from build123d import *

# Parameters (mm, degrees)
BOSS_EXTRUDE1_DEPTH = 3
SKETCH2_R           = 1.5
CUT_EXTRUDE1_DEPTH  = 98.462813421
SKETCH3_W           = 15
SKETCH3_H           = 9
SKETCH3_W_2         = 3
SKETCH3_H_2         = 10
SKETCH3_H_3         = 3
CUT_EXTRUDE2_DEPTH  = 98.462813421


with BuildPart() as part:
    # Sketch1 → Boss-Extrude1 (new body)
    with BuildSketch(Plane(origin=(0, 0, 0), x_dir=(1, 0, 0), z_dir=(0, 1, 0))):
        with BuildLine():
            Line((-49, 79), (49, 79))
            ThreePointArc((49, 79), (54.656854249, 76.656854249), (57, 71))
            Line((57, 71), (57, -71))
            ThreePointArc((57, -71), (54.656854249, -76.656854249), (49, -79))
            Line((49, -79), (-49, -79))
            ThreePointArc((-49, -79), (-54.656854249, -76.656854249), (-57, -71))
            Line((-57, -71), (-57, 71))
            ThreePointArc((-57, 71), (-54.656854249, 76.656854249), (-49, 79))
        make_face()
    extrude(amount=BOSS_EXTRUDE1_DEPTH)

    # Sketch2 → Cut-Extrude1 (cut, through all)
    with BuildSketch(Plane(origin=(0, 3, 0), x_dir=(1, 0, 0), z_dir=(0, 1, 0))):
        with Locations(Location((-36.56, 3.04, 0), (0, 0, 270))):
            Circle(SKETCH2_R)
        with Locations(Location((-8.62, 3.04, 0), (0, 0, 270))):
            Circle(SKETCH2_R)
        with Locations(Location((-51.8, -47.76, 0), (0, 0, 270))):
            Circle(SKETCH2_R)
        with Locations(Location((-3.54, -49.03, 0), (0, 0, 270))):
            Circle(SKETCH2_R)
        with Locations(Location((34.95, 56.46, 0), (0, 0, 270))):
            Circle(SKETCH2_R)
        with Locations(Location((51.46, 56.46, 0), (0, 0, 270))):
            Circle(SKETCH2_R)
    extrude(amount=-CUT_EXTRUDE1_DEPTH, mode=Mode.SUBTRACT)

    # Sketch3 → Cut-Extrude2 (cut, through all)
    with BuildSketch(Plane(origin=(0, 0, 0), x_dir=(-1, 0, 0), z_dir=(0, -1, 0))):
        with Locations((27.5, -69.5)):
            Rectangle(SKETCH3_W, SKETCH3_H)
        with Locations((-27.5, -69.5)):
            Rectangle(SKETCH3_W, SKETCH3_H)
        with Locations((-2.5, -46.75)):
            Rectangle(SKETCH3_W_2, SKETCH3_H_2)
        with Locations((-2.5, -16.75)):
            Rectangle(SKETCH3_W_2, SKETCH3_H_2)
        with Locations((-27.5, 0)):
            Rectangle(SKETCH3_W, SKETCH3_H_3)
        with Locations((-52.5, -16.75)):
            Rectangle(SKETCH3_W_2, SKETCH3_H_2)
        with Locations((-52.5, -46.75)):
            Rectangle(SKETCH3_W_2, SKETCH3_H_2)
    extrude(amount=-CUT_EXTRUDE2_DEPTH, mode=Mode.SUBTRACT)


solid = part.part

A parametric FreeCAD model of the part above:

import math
import FreeCAD as App
import Part
import Sketcher
from FreeCAD import Vector


def add_polygon(sketch, points):
    """Adds a closed chain of lines whose ends are joined by coincident constraints."""
    first, n = sketch.GeometryCount, len(points)
    for a, b in zip(points, points[1:] + points[:1]):
        sketch.addGeometry(Part.LineSegment(App.Vector(*a, 0), App.Vector(*b, 0)), False)
    for i in range(n):
        sketch.addConstraint(Sketcher.Constraint("Coincident", first + i, 2, first + (i + 1) % n, 1))

doc = App.newDocument("Part")
body = doc.addObject("PartDesign::Body", "Body")

# Sketch on XZ plane
sketch1 = body.newObject("Sketcher::SketchObject", "Sketch")
sketch1.AttachmentSupport = (doc.getObject("XZ_Plane"), [""])
sketch1.MapMode = "FlatFace"
sketch1.addGeometry(Part.LineSegment(Vector(49, -79, 0), Vector(-49, -79, 0)), False)
sketch1.addGeometry(Part.ArcOfCircle(Part.Circle(Vector(-49, -71, 0), Vector(0, 0, 1), 8), math.radians(-180), math.radians(-90)), False)
sketch1.addGeometry(Part.LineSegment(Vector(-57, -71, 0), Vector(-57, 71, 0)), False)
sketch1.addGeometry(Part.ArcOfCircle(Part.Circle(Vector(-49, 71, 0), Vector(0, 0, 1), 8), math.radians(90), math.radians(180)), False)
sketch1.addGeometry(Part.LineSegment(Vector(-49, 79, 0), Vector(49, 79, 0)), False)
sketch1.addGeometry(Part.ArcOfCircle(Part.Circle(Vector(49, 71, 0), Vector(0, 0, 1), 8), math.radians(0), math.radians(90)), False)
sketch1.addGeometry(Part.LineSegment(Vector(57, 71, 0), Vector(57, -71, 0)), False)
sketch1.addGeometry(Part.ArcOfCircle(Part.Circle(Vector(49, -71, 0), Vector(0, 0, 1), 8), math.radians(-90), math.radians(0)), False)
sketch1.addConstraint(Sketcher.Constraint("Tangent", 0, 2, 1, 2))
sketch1.addConstraint(Sketcher.Constraint("Tangent", 1, 1, 2, 1))
sketch1.addConstraint(Sketcher.Constraint("Tangent", 2, 2, 3, 2))
sketch1.addConstraint(Sketcher.Constraint("Tangent", 3, 1, 4, 1))
sketch1.addConstraint(Sketcher.Constraint("Tangent", 4, 2, 5, 2))
sketch1.addConstraint(Sketcher.Constraint("Tangent", 5, 1, 6, 1))
sketch1.addConstraint(Sketcher.Constraint("Tangent", 6, 2, 7, 2))
sketch1.addConstraint(Sketcher.Constraint("Tangent", 7, 1, 0, 1))
sketch1.addConstraint(Sketcher.Constraint("Horizontal", 0))
sketch1.addConstraint(Sketcher.Constraint("Vertical", 2))
sketch1.addConstraint(Sketcher.Constraint("Horizontal", 4))
sketch1.addConstraint(Sketcher.Constraint("Vertical", 6))
sketch1.addConstraint(Sketcher.Constraint("Equal", 1, 3))
sketch1.addConstraint(Sketcher.Constraint("Equal", 3, 5))
sketch1.addConstraint(Sketcher.Constraint("Equal", 5, 7))
sketch1.addConstraint(Sketcher.Constraint("Symmetric", 1, 3, 5, 3, -1, 1))
sketch1.addConstraint(Sketcher.Constraint("Radius", 1, 8.0))
sketch1.addConstraint(Sketcher.Constraint("DistanceX", 0, 2, 0, 1, 98.0))
sketch1.addConstraint(Sketcher.Constraint("DistanceY", 2, 1, 2, 2, 142.0))
pad1 = body.newObject("PartDesign::Pad", "Pad")
pad1.Profile = sketch1
pad1.Length = 3
pad1.Reversed = True

# Sketch on XZ plane
sketch2 = body.newObject("Sketcher::SketchObject", "Sketch001")
sketch2.AttachmentSupport = (doc.getObject("XZ_Plane"), [""])
sketch2.MapMode = "FlatFace"
sketch2.AttachmentOffset = App.Placement(Vector(0, 0, -3), App.Rotation())
sketch2.addGeometry(Part.Circle(Vector(-36.6, -3, 0), Vector(0, 0, 1), 1.5), False)
sketch2.addGeometry(Part.Circle(Vector(-8.6, -3, 0), Vector(0, 0, 1), 1.5), False)
sketch2.addGeometry(Part.Circle(Vector(-51.8, 47.8, 0), Vector(0, 0, 1), 1.5), False)
sketch2.addGeometry(Part.Circle(Vector(-3.5, 49, 0), Vector(0, 0, 1), 1.5), False)
sketch2.addGeometry(Part.Circle(Vector(35, -56.5, 0), Vector(0, 0, 1), 1.5), False)
sketch2.addGeometry(Part.Circle(Vector(51.5, -56.5, 0), Vector(0, 0, 1), 1.5), False)
sketch2.addConstraint(Sketcher.Constraint("Equal", 0, 1))
sketch2.addConstraint(Sketcher.Constraint("Equal", 1, 2))
sketch2.addConstraint(Sketcher.Constraint("Equal", 2, 3))
sketch2.addConstraint(Sketcher.Constraint("Equal", 3, 4))
sketch2.addConstraint(Sketcher.Constraint("Equal", 4, 5))
sketch2.addConstraint(Sketcher.Constraint("Horizontal", 0, 3, 1, 3))
sketch2.addConstraint(Sketcher.Constraint("Horizontal", 4, 3, 5, 3))
sketch2.addConstraint(Sketcher.Constraint("Diameter", 0, 3.0))
sketch2.addConstraint(Sketcher.Constraint("DistanceX", 3, 3, 5, 3, 55.0))
sketch2.addConstraint(Sketcher.Constraint("DistanceX", 2, 3, -1, 1, 51.8))
sketch2.addConstraint(Sketcher.Constraint("DistanceY", 0, 3, 2, 3, 50.8))
sketch2.addConstraint(Sketcher.Constraint("DistanceX", 0, 3, -1, 1, 36.56))
sketch2.addConstraint(Sketcher.Constraint("DistanceY", 0, 3, -1, 1, 3.04))
sketch2.addConstraint(Sketcher.Constraint("DistanceX", 1, 3, -1, 1, 8.62))
sketch2.addConstraint(Sketcher.Constraint("DistanceX", 3, 3, -1, 1, 3.54))
sketch2.addConstraint(Sketcher.Constraint("DistanceY", -1, 1, 3, 3, 49.03))
sketch2.addConstraint(Sketcher.Constraint("DistanceX", -1, 1, 4, 3, 34.95))
sketch2.addConstraint(Sketcher.Constraint("DistanceY", 4, 3, -1, 1, 56.46))
pocket1 = body.newObject("PartDesign::Pocket", "Pocket")
pocket1.Profile = sketch2
pocket1.Type = "ThroughAll"
pocket1.Reversed = True

# Sketch on XZ plane
sketch3 = body.newObject("Sketcher::SketchObject", "Sketch002")
sketch3.AttachmentSupport = (doc.getObject("XZ_Plane"), [""])
sketch3.MapMode = "FlatFace"
add_polygon(sketch3, [(-20, 65), (-20, 74), (-35, 74), (-35, 65)])  # lines 0-3
add_polygon(sketch3, [(35, 65), (35, 74), (20, 74), (20, 65)])  # lines 4-7
add_polygon(sketch3, [(4, 41.8), (4, 51.8), (1, 51.8), (1, 41.8)])  # lines 8-11
add_polygon(sketch3, [(4, 11.8), (4, 21.8), (1, 21.8), (1, 11.8)])  # lines 12-15
add_polygon(sketch3, [(35, -1.5), (35, 1.5), (20, 1.5), (20, -1.5)])  # lines 16-19
add_polygon(sketch3, [(54, 11.8), (54, 21.8), (51, 21.8), (51, 11.8)])  # lines 20-23
add_polygon(sketch3, [(54, 41.8), (54, 51.8), (51, 51.8), (51, 41.8)])  # lines 24-27
sketch3.addConstraint(Sketcher.Constraint("Vertical", 0))
sketch3.addConstraint(Sketcher.Constraint("Horizontal", 1))
sketch3.addConstraint(Sketcher.Constraint("Vertical", 2))
sketch3.addConstraint(Sketcher.Constraint("Horizontal", 3))
sketch3.addConstraint(Sketcher.Constraint("Vertical", 4))
sketch3.addConstraint(Sketcher.Constraint("Horizontal", 5))
sketch3.addConstraint(Sketcher.Constraint("Vertical", 6))
sketch3.addConstraint(Sketcher.Constraint("Horizontal", 7))
sketch3.addConstraint(Sketcher.Constraint("Vertical", 8))
sketch3.addConstraint(Sketcher.Constraint("Horizontal", 9))
sketch3.addConstraint(Sketcher.Constraint("Vertical", 10))
sketch3.addConstraint(Sketcher.Constraint("Horizontal", 11))
sketch3.addConstraint(Sketcher.Constraint("Vertical", 12))
sketch3.addConstraint(Sketcher.Constraint("Horizontal", 13))
sketch3.addConstraint(Sketcher.Constraint("Vertical", 14))
sketch3.addConstraint(Sketcher.Constraint("Horizontal", 15))
sketch3.addConstraint(Sketcher.Constraint("Vertical", 16))
sketch3.addConstraint(Sketcher.Constraint("Horizontal", 17))
sketch3.addConstraint(Sketcher.Constraint("Vertical", 18))
sketch3.addConstraint(Sketcher.Constraint("Horizontal", 19))
sketch3.addConstraint(Sketcher.Constraint("Vertical", 20))
sketch3.addConstraint(Sketcher.Constraint("Horizontal", 21))
sketch3.addConstraint(Sketcher.Constraint("Vertical", 22))
sketch3.addConstraint(Sketcher.Constraint("Horizontal", 23))
sketch3.addConstraint(Sketcher.Constraint("Vertical", 24))
sketch3.addConstraint(Sketcher.Constraint("Horizontal", 25))
sketch3.addConstraint(Sketcher.Constraint("Vertical", 26))
sketch3.addConstraint(Sketcher.Constraint("Horizontal", 27))
sketch3.addConstraint(Sketcher.Constraint("Symmetric", 1, 2, 4, 2, -2))
sketch3.addConstraint(Sketcher.Constraint("Symmetric", 3, 2, 6, 2, -2))
sketch3.addConstraint(Sketcher.Constraint("Horizontal", 13, 2, 20, 2))
sketch3.addConstraint(Sketcher.Constraint("Horizontal", 15, 2, 22, 2))
sketch3.addConstraint(Sketcher.Constraint("Horizontal", 9, 2, 24, 2))
sketch3.addConstraint(Sketcher.Constraint("Horizontal", 11, 2, 26, 2))
sketch3.addConstraint(Sketcher.Constraint("Vertical", 11, 2, 12, 2))
sketch3.addConstraint(Sketcher.Constraint("Vertical", 10, 2, 13, 2))
sketch3.addConstraint(Sketcher.Constraint("Vertical", 7, 2, 16, 2))
sketch3.addConstraint(Sketcher.Constraint("Vertical", 6, 2, 17, 2))
sketch3.addConstraint(Sketcher.Constraint("Vertical", 23, 2, 24, 2))
sketch3.addConstraint(Sketcher.Constraint("Vertical", 22, 2, 25, 2))
sketch3.addConstraint(Sketcher.Constraint("Equal", 15, 21))
sketch3.addConstraint(Sketcher.Constraint("Equal", 10, 12))
sketch3.addConstraint(Sketcher.Constraint("Equal", 27, 16))
sketch3.addConstraint(Sketcher.Constraint("DistanceX", 1, 2, 1, 1, 15.0))
sketch3.addConstraint(Sketcher.Constraint("DistanceX", 9, 2, 9, 1, 3.0))
sketch3.addConstraint(Sketcher.Constraint("DistanceY", 0, 1, 0, 2, 9.0))
sketch3.addConstraint(Sketcher.Constraint("DistanceY", 8, 1, 8, 2, 10.0))
sketch3.addConstraint(Sketcher.Constraint("DistanceX", 0, 2, -1, 1, 20.0))
sketch3.addConstraint(Sketcher.Constraint("DistanceY", -1, 1, 0, 2, 74.0))
sketch3.addConstraint(Sketcher.Constraint("DistanceX", -1, 1, 8, 2, 4.0))
sketch3.addConstraint(Sketcher.Constraint("DistanceX", -1, 1, 20, 2, 54.0))
sketch3.addConstraint(Sketcher.Constraint("DistanceY", 12, 2, 11, 2, 20.0))
sketch3.addConstraint(Sketcher.Constraint("DistanceY", -1, 1, 16, 2, 1.5))
sketch3.addConstraint(Sketcher.Constraint("DistanceY", -1, 1, 8, 2, 51.75))
pocket2 = body.newObject("PartDesign::Pocket", "Pocket001")
pocket2.Profile = sketch3
pocket2.Type = "ThroughAll"

doc.recompute()
